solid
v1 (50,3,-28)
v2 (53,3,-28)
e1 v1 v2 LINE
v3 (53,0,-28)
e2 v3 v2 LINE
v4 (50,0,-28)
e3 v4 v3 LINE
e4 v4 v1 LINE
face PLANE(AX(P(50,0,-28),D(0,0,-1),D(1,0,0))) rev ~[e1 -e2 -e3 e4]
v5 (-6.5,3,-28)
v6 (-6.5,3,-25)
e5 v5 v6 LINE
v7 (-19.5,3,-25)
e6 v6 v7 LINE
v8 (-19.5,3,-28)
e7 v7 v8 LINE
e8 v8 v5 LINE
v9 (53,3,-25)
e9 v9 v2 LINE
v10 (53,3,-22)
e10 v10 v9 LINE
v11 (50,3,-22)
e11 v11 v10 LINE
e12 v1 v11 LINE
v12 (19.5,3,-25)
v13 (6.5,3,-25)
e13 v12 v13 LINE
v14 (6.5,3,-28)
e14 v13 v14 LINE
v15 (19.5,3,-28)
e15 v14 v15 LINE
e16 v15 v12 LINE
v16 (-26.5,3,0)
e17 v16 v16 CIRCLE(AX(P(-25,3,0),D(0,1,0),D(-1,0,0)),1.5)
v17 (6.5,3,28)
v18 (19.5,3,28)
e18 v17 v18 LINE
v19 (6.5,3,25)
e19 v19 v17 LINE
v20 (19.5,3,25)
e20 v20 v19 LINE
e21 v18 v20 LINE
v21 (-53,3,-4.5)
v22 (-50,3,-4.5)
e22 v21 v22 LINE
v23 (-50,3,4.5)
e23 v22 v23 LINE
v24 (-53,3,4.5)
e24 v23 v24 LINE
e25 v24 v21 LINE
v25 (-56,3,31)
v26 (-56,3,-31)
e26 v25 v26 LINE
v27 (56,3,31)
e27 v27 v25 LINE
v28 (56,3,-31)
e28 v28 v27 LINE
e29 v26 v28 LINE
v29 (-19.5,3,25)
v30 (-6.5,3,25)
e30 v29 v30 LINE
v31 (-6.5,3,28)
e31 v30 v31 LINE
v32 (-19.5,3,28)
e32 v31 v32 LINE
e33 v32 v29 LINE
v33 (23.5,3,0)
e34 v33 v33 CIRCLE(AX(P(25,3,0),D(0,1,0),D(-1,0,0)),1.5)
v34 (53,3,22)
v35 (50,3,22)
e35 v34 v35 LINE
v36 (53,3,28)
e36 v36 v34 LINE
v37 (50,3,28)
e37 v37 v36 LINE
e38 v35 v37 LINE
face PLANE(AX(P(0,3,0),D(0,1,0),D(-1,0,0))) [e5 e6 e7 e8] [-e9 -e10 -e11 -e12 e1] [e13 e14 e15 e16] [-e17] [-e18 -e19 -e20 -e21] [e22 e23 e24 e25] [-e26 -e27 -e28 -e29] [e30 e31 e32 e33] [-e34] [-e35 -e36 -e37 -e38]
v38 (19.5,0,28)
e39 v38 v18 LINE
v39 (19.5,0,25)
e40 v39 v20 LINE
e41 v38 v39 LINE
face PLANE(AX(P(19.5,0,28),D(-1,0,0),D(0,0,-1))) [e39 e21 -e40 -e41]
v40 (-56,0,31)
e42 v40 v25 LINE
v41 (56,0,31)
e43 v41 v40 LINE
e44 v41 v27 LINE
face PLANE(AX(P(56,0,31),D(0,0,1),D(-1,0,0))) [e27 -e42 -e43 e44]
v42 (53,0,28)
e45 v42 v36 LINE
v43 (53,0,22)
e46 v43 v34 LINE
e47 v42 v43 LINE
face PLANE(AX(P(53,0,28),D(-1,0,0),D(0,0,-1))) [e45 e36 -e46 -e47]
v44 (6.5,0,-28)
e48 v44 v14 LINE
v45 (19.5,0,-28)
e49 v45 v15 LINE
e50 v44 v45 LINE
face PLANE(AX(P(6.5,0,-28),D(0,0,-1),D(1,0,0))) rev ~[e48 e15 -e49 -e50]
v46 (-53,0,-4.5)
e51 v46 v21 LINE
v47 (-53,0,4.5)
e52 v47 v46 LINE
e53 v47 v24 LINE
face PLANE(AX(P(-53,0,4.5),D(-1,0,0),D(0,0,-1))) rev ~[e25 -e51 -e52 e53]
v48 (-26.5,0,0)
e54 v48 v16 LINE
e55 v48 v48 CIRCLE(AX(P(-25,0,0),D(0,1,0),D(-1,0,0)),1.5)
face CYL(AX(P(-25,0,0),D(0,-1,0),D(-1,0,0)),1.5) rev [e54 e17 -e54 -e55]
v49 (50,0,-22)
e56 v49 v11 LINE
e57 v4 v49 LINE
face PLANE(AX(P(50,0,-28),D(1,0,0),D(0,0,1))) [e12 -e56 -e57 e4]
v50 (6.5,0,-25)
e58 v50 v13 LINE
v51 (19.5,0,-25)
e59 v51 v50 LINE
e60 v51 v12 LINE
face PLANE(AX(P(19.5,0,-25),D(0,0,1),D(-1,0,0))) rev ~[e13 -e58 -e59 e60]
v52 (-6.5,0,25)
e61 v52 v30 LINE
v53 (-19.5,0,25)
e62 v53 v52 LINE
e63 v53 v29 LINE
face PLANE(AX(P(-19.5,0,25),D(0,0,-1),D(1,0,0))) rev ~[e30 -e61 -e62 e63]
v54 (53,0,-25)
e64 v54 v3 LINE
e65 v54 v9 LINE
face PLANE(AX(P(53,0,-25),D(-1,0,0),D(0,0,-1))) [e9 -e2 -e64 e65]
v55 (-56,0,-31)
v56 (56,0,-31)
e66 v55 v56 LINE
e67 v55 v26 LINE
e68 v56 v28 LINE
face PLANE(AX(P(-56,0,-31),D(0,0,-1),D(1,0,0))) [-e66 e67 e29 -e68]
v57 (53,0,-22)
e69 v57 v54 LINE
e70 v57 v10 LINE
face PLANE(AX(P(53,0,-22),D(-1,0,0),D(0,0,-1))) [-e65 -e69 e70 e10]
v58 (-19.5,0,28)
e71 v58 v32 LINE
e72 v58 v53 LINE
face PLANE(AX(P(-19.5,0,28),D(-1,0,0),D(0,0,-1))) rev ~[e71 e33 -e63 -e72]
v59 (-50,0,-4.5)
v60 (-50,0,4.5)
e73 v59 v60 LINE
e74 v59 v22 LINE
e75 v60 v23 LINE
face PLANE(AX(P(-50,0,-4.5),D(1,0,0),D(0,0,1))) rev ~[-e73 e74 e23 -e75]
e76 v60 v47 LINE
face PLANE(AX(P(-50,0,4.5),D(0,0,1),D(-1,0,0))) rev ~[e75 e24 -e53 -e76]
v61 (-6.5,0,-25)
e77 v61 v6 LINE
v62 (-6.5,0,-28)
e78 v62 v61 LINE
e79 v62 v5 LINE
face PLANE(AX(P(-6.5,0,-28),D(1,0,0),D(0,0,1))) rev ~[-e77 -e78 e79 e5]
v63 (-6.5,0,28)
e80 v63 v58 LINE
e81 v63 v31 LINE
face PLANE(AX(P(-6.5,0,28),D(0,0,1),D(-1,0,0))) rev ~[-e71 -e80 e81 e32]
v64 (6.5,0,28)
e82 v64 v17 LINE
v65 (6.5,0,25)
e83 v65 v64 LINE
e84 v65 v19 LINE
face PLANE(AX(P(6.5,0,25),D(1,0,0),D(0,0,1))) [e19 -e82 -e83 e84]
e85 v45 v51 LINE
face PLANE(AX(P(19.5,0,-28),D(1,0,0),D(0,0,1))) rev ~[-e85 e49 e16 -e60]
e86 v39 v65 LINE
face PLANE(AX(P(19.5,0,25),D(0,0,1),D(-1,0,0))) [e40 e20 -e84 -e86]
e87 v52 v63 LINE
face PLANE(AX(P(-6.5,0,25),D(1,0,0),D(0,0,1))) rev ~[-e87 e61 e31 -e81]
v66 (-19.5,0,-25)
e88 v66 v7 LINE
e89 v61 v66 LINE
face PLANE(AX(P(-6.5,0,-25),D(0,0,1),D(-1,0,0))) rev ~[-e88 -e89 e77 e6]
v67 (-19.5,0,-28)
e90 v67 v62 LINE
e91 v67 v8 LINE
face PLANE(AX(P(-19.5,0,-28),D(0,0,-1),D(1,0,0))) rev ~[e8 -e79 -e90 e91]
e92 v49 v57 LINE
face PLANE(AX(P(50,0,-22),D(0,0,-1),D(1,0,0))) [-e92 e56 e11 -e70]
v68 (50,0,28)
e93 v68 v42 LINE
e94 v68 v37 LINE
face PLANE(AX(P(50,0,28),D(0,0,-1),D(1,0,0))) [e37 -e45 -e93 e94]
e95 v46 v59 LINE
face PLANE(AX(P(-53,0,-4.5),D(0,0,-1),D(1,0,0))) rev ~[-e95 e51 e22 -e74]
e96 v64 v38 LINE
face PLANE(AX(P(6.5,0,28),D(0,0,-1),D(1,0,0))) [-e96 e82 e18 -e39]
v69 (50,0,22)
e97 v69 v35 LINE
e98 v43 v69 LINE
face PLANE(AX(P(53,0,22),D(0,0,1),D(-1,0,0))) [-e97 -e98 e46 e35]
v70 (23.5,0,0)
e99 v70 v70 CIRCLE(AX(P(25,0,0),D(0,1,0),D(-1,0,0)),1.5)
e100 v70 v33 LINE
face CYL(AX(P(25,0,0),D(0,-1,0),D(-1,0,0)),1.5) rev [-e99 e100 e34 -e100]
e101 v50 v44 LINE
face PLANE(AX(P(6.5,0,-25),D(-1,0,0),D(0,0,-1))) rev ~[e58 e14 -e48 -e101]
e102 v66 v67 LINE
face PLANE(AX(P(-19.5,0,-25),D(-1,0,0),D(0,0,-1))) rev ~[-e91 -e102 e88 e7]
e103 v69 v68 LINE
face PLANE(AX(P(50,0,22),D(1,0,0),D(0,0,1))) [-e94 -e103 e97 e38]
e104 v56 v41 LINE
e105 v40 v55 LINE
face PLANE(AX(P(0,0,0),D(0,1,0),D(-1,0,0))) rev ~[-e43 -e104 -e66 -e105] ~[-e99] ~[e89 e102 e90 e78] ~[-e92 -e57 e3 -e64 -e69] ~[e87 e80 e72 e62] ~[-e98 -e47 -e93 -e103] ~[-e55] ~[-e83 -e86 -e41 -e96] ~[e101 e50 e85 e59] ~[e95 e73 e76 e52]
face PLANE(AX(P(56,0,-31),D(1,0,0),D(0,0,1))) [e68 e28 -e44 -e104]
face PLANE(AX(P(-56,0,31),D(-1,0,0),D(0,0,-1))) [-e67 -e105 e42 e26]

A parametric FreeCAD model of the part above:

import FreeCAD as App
import Part
import Sketcher
Q = App.Units.Quantity


def add_polygon(sketch, points):
    """Adds a closed chain of lines whose ends are joined by coincident constraints."""
    first, n = sketch.GeometryCount, len(points)
    for a, b in zip(points, points[1:] + points[:1]):
        sketch.addGeometry(Part.LineSegment(App.Vector(*a, 0), App.Vector(*b, 0)), False)
    for i in range(n):
        sketch.addConstraint(Sketcher.Constraint("Coincident", first + i, 2, first + (i + 1) % n, 1))

doc = App.newDocument("Part")
params = doc.addObject("Spreadsheet::Sheet", "Params")
for row, (alias, value) in enumerate([
    ("sketch1_diameter", "3 mm"),
    ("sketch1_width", "112 mm"),
    ("sketch1_width2", "3 mm"),
    ("sketch1_width3", "13 mm"),
    ("sketch1_height", "62 mm"),
    ("pad1_length", "3 mm"),
], start=1):
    params.set(f"A{row}", alias)
    params.set(f"B{row}", "=" + value)
    params.setAlias(f"B{row}", alias)

body = doc.addObject("PartDesign::Body", "Body")

# Sketch on XZ plane
sketch1 = body.newObject("Sketcher::SketchObject", "Sketch")
sketch1.AttachmentSupport = (doc.getObject("XZ_Plane"), [""])
sketch1.MapMode = "FlatFace"
add_polygon(sketch1, [(-56, -31), (-56, 31), (56, 31), (56, -31)])  # lines 0-3
add_polygon(sketch1, [(50, -22), (50, -28), (53, -28), (53, -22)])  # lines 4-7
add_polygon(sketch1, [(6.5, -28), (19.5, -28), (19.5, -25), (6.5, -25)])  # lines 8-11
add_polygon(sketch1, [(-6.5, -25), (-19.5, -25), (-19.5, -28), (-6.5, -28)])  # lines 12-15
sketch1.addGeometry(Part.Circle(App.Vector(25, 0, 0), App.Vector(0, 0, 1), 1.5), False)  # 16
add_polygon(sketch1, [(53, 28), (50, 28), (50, 22), (53, 22)])  # lines 17-20
add_polygon(sketch1, [(19.5, 25), (19.5, 28), (6.5, 28), (6.5, 25)])  # lines 21-24
sketch1.addGeometry(Part.Circle(App.Vector(-25, 0, 0), App.Vector(0, 0, 1), 1.5), False)  # 25
add_polygon(sketch1, [(-50, 4.5), (-53, 4.5), (-53, -4.5), (-50, -4.5)])  # lines 26-29
add_polygon(sketch1, [(-6.5, 28), (-19.5, 28), (-19.5, 25), (-6.5, 25)])  # lines 30-33
sketch1.addConstraint([
    Sketcher.Constraint("Vertical", 0),
    Sketcher.Constraint("Horizontal", 1),
    Sketcher.Constraint("Vertical", 2),
    Sketcher.Constraint("Horizontal", 3),
    Sketcher.Constraint("Vertical", 4),
    Sketcher.Constraint("Horizontal", 5),
    Sketcher.Constraint("Vertical", 6),
    Sketcher.Constraint("Horizontal", 7),
    Sketcher.Constraint("Horizontal", 8),
    Sketcher.Constraint("Vertical", 9),
    Sketcher.Constraint("Horizontal", 10),
    Sketcher.Constraint("Vertical", 11),
    Sketcher.Constraint("Horizontal", 12),
    Sketcher.Constraint("Vertical", 13),
    Sketcher.Constraint("Horizontal", 14),
    Sketcher.Constraint("Vertical", 15),
    Sketcher.Constraint("Horizontal", 17),
    Sketcher.Constraint("Vertical", 18),
    Sketcher.Constraint("Horizontal", 19),
    Sketcher.Constraint("Vertical", 20),
    Sketcher.Constraint("Vertical", 21),
    Sketcher.Constraint("Horizontal", 22),
    Sketcher.Constraint("Vertical", 23),
    Sketcher.Constraint("Horizontal", 24),
    Sketcher.Constraint("Horizontal", 26),
    Sketcher.Constraint("Vertical", 27),
    Sketcher.Constraint("Horizontal", 28),
    Sketcher.Constraint("Vertical", 29),
    Sketcher.Constraint("Horizontal", 30),
    Sketcher.Constraint("Vertical", 31),
    Sketcher.Constraint("Horizontal", 32),
    Sketcher.Constraint("Vertical", 33),
    Sketcher.Constraint("Equal", 16, 25),
    Sketcher.Constraint("Symmetric", 16, 3, 25, 3, -1, 1),
    Sketcher.Constraint("Symmetric", 0, 2, 2, 2, -1, 1),
    Sketcher.Constraint("Symmetric", 13, 2, 21, 2, -1, 1),
    Sketcher.Constraint("Symmetric", 15, 2, 23, 2, -1, 1),
    Sketcher.Constraint("Symmetric", 8, 2, 30, 2, -1, 1),
    Sketcher.Constraint("Symmetric", 10, 2, 32, 2, -1, 1),
    Sketcher.Constraint("Symmetric", 9, 2, 12, 2, -2),
    Sketcher.Constraint("Symmetric", 11, 2, 14, 2, -2),
    Sketcher.Constraint("Symmetric", 4, 2, 17, 2, -1),
    Sketcher.Constraint("Symmetric", 6, 2, 19, 2, -1),
    Sketcher.Constraint("PointOnObject", 16, 3, -1),
    Sketcher.Constraint("Horizontal", 5, 2, 8, 2),
    Sketcher.Constraint("Equal", 19, 26),
    Sketcher.Constraint("Equal", 28, 9),
    Sketcher.Constraint("Diameter", 16, Q("3 mm")),
    Sketcher.Constraint("DistanceX", 1, 1, 1, 2, Q("112 mm")),
    Sketcher.Constraint("DistanceX", 5, 1, 5, 2, Q("3 mm")),
    Sketcher.Constraint("DistanceX", 8, 1, 8, 2, Q("13 mm")),
    Sketcher.Constraint("DistanceY", 0, 1, 0, 2, Q("62 mm")),
    Sketcher.Constraint("DistanceY", 4, 2, 4, 1, Q("6 mm")),
    Sketcher.Constraint("DistanceY", 27, 2, 27, 1, Q("9 mm")),
    Sketcher.Constraint("DistanceX", -1, 1, 16, 3, Q("25 mm")),
    Sketcher.Constraint("DistanceX", -1, 1, 4, 2, Q("50 mm")),
    Sketcher.Constraint("DistanceY", 4, 2, -1, 1, Q("28 mm")),
    Sketcher.Constraint("DistanceX", 26, 2, -1, 1, Q("53 mm")),
    Sketcher.Constraint("DistanceX", 12, 2, 10, 2, Q("26 mm")),
    Sketcher.Constraint("DistanceY", -1, 1, 26, 2, Q("4.5 mm")),
])
sketch1.setExpression("Constraints[79]", "Params.sketch1_diameter")
sketch1.setExpression("Constraints[80]", "Params.sketch1_width")
sketch1.setExpression("Constraints[81]", "Params.sketch1_width2")
sketch1.setExpression("Constraints[82]", "Params.sketch1_width3")
sketch1.setExpression("Constraints[83]", "Params.sketch1_height")
pad1 = body.newObject("PartDesign::Pad", "Pad")
pad1.Profile = sketch1
pad1.setExpression("Length", "Params.pad1_length")
pad1.Reversed = True

doc.recompute()
